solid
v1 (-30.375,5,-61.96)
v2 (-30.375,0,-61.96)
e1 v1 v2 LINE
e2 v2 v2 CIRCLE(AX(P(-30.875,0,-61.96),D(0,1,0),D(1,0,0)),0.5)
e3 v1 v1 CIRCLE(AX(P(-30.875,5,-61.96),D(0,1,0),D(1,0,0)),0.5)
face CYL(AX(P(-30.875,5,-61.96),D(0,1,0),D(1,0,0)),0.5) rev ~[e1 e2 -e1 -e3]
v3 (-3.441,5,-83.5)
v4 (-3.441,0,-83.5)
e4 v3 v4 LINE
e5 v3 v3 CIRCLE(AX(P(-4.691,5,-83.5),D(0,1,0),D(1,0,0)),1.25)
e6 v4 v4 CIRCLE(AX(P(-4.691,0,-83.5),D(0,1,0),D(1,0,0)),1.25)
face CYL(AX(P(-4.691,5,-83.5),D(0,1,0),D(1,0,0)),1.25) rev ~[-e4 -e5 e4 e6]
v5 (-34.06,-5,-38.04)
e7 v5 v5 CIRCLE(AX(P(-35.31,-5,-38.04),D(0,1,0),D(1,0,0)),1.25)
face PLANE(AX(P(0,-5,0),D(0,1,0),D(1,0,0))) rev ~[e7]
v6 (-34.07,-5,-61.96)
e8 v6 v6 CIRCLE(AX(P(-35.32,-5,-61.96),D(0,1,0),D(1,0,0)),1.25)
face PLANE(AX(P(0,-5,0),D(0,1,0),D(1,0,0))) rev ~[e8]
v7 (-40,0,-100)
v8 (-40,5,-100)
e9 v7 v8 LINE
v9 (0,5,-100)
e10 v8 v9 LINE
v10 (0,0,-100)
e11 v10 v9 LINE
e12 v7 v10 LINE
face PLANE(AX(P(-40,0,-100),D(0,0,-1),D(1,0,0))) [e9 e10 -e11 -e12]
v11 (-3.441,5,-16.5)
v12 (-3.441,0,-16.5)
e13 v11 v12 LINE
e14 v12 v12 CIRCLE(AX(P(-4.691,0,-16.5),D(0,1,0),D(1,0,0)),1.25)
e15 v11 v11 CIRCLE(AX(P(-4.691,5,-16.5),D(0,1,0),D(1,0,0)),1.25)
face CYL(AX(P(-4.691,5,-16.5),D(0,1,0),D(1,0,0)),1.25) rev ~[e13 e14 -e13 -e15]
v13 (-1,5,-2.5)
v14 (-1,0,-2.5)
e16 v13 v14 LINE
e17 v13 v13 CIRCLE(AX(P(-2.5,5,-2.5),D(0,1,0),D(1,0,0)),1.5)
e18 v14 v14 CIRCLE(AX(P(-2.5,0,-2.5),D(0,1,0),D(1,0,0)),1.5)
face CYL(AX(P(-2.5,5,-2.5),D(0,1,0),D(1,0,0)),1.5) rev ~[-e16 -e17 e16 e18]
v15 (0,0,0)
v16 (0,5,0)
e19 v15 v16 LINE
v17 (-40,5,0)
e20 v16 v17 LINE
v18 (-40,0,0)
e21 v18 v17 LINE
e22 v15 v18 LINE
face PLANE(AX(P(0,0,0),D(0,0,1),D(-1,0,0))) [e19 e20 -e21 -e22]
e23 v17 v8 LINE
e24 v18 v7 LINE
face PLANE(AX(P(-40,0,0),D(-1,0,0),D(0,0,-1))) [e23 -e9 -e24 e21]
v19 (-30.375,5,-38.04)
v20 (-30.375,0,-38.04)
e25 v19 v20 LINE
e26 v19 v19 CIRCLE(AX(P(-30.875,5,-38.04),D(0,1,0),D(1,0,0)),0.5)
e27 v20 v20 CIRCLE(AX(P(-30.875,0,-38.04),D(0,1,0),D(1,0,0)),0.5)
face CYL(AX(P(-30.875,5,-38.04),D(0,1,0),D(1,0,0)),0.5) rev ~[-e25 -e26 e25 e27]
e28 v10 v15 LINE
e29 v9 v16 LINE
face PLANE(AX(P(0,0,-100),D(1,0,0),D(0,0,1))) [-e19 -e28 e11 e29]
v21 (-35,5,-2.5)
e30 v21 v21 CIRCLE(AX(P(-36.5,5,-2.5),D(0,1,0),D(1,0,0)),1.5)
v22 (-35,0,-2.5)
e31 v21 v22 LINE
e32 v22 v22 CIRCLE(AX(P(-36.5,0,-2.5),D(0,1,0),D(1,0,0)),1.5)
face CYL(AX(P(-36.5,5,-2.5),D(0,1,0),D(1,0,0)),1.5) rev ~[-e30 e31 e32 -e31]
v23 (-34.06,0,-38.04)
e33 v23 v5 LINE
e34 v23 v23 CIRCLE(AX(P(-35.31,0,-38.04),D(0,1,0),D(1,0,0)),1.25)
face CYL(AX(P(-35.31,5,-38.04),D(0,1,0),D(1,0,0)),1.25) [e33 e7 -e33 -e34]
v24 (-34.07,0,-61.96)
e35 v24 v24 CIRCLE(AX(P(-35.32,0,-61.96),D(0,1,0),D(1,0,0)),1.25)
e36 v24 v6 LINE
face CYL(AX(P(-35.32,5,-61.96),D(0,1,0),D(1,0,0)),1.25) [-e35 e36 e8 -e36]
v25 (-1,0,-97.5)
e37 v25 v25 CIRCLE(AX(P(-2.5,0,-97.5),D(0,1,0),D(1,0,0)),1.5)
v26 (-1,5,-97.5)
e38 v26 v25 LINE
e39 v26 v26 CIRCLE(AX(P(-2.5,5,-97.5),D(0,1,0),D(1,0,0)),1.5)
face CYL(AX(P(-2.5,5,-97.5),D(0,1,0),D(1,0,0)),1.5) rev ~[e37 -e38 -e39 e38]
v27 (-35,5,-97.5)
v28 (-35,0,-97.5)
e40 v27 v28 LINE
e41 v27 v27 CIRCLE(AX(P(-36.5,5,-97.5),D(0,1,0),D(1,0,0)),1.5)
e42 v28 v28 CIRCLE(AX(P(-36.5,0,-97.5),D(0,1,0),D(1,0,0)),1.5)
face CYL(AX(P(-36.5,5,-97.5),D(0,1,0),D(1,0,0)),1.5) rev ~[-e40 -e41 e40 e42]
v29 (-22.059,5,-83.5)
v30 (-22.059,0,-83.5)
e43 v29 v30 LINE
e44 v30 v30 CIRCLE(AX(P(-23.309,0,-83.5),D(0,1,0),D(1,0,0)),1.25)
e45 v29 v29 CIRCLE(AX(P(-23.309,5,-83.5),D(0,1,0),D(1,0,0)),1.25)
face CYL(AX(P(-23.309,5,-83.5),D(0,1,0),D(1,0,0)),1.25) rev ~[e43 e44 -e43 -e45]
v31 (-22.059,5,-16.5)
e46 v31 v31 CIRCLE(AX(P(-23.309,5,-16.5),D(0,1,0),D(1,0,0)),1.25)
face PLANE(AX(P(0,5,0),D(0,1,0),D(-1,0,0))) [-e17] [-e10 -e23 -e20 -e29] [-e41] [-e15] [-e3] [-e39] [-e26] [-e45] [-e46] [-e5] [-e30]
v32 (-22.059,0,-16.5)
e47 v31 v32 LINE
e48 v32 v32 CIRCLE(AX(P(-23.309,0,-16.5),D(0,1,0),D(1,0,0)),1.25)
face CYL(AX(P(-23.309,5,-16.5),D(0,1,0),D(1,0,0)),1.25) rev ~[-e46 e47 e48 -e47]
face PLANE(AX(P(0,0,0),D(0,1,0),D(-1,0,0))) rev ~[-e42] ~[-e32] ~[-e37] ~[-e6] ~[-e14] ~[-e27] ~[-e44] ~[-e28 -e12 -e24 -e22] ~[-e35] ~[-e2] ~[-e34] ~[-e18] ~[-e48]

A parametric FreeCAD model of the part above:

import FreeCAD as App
import Part
import Sketcher

V = App.Vector
Q = App.Units.Quantity

doc = App.newDocument("Part")
params = doc.addObject("Spreadsheet::Sheet", "Params")
for row, (alias, value) in enumerate([
    ("sketch1_diameter", "3 mm"),
    ("sketch1_width", "40 mm"),
    ("sketch1_height", "100 mm"),
    ("pad1_length", "5 mm"),
    ("sketch2_diameter", "3 mm"),
    ("pocket1_length", "5 mm"),
    ("sketch3_height", "15 mm"),
    ("pocket2_length", "0.5 mm"),
    ("sketch4_diameter", "3 mm"),
    ("pad2_length", "5 mm"),
    ("sketch5_diameter", "2.5 mm"),
    ("pocket3_length", "5 mm"),
    ("sketch6_diameter", "2.5 mm"),
    ("pad3_length", "5 mm"),
    ("sketch7_diameter", "2.5 mm"),
    ("pocket4_length", "6 mm"),
    ("sketch8_height", "15 mm"),
    ("pad4_length", "0.5 mm"),
    ("sketch9_diameter", "2.5 mm"),
    ("pocket5_length", "5 mm"),
    ("sketch10_diameter", "2.5 mm"),
    ("pad5_length", "5 mm"),
    ("sketch11_diameter", "3 mm"),
    ("pocket6_length", "10 mm"),
    ("sketch12_diameter", "2.5 mm"),
    ("pocket7_length", "10 mm"),
    ("sketch13_diameter", "1 mm"),
    ("pocket8_length", "10 mm"),
    ("sketch14_diameter", "2.5 mm"),
    ("pad6_length", "10 mm"),
], start=1):
    params.set(f"A{row}", alias)
    params.set(f"B{row}", "=" + value)
    params.setAlias(f"B{row}", alias)

body = doc.addObject("PartDesign::Body", "Body")

sketch1 = doc.addObject("Sketcher::SketchObject", "Sketch")
body.addObject(sketch1)
sketch1.AttachmentSupport = (doc.XZ_Plane, [""])
sketch1.MapMode = "FlatFace"
sketch1.addGeometry(Part.LineSegment(V(-40, 0, 0), V(0, 0, 0)), False)
sketch1.addGeometry(Part.LineSegment(V(0, 0, 0), V(0, -100, 0)), False)
sketch1.addGeometry(Part.LineSegment(V(0, -100, 0), V(-40, -100, 0)), False)
sketch1.addGeometry(Part.LineSegment(V(-40, -100, 0), V(-40, 0, 0)), False)
sketch1.addGeometry(Part.Circle(V(-4, -83.5, 0), V(0, 0, 1), 1.5), False)
sketch1.addGeometry(Part.Circle(V(-19.95, -83.5, 0), V(0, 0, 1), 1.5), False)
sketch1.addGeometry(Part.Circle(V(-4, -16.5, 0), V(0, 0, 1), 1.5), False)
sketch1.addGeometry(Part.Circle(V(-19.95, -16.5, 0), V(0, 0, 1), 1.5), False)
sketch1.addConstraint(Sketcher.Constraint("Coincident", 0, 2, 1, 1))
sketch1.addConstraint(Sketcher.Constraint("Coincident", 1, 2, 2, 1))
sketch1.addConstraint(Sketcher.Constraint("Coincident", 2, 2, 3, 1))
sketch1.addConstraint(Sketcher.Constraint("Coincident", 3, 2, 0, 1))
sketch1.addConstraint(Sketcher.Constraint("Horizontal", 0))
sketch1.addConstraint(Sketcher.Constraint("Vertical", 1))
sketch1.addConstraint(Sketcher.Constraint("Horizontal", 2))
sketch1.addConstraint(Sketcher.Constraint("Vertical", 3))
sketch1.addConstraint(Sketcher.Constraint("Coincident", 0, 2, -1, 1))
sketch1.addConstraint(Sketcher.Constraint("Equal", 4, 5))
sketch1.addConstraint(Sketcher.Constraint("Equal", 5, 6))
sketch1.addConstraint(Sketcher.Constraint("Equal", 6, 7))
sketch1.addConstraint(Sketcher.Constraint("Horizontal", 4, 3, 5, 3))
sketch1.addConstraint(Sketcher.Constraint("Horizontal", 6, 3, 7, 3))
sketch1.addConstraint(Sketcher.Constraint("Vertical", 4, 3, 6, 3))
sketch1.addConstraint(Sketcher.Constraint("Vertical", 5, 3, 7, 3))
sketch1.addConstraint(Sketcher.Constraint("Diameter", 4, Q("3 mm")))
sketch1.addConstraint(Sketcher.Constraint("DistanceX", 0, 1, 0, 2, Q("40 mm")))
sketch1.addConstraint(Sketcher.Constraint("DistanceY", 1, 2, 1, 1, Q("100 mm")))
sketch1.addConstraint(Sketcher.Constraint("DistanceX", 4, 3, -1, 1, Q("4 mm")))
sketch1.addConstraint(Sketcher.Constraint("DistanceY", 6, 3, -1, 1, Q("16.5 mm")))
sketch1.addConstraint(Sketcher.Constraint("DistanceY", 1, 2, 4, 3, Q("16.5 mm")))
sketch1.addConstraint(Sketcher.Constraint("DistanceX", 5, 3, 4, 3, Q("15.95 mm")))
sketch1.setExpression("Constraints[16]", "Params.sketch1_diameter")
sketch1.setExpression("Constraints[17]", "Params.sketch1_width")
sketch1.setExpression("Constraints[18]", "Params.sketch1_height")
pad1 = doc.addObject("PartDesign::Pad", "Pad")
body.addObject(pad1)
pad1.Profile = sketch1
pad1.setExpression("Length", "Params.pad1_length")
pad1.Reversed = True

sketch2 = doc.addObject("Sketcher::SketchObject", "Sketch001")
body.addObject(sketch2)
sketch2.AttachmentSupport = (doc.XZ_Plane, [""])
sketch2.MapMode = "FlatFace"
sketch2.AttachmentOffset = App.Placement(V(0, 0, -5), App.Rotation())
sketch2.addGeometry(Part.Circle(V(-2.5, -2.5, 0), V(0, 0, 1), 1.5), False)
sketch2.addGeometry(Part.Circle(V(-2.5, -97.5, 0), V(0, 0, 1), 1.5), False)
sketch2.addConstraint(Sketcher.Constraint("Equal", 0, 1))
sketch2.addConstraint(Sketcher.Constraint("Vertical", 0, 3, 1, 3))
sketch2.addConstraint(Sketcher.Constraint("Diameter", 0, Q("3 mm")))
sketch2.addConstraint(Sketcher.Constraint("DistanceX", 0, 3, -1, 1, Q("2.5 mm")))
sketch2.addConstraint(Sketcher.Constraint("DistanceY", 0, 3, -1, 1, Q("2.5 mm")))
sketch2.addConstraint(Sketcher.Constraint("DistanceY", 1, 3, 0, 3, Q("95 mm")))
sketch2.setExpression("Constraints[2]", "Params.sketch2_diameter")
pocket1 = doc.addObject("PartDesign::Pocket", "Pocket")
body.addObject(pocket1)
pocket1.Profile = sketch2
pocket1.setExpression("Length", "Params.pocket1_length")
pocket1.Reversed = True

sketch3 = doc.addObject("Sketcher::SketchObject", "Sketch002")
body.addObject(sketch3)
sketch3.AttachmentSupport = (doc.XZ_Plane, [""])
sketch3.MapMode = "FlatFace"
sketch3.AttachmentOffset = App.Placement(V(0, 0, -5), App.Rotation())
sketch3.addGeometry(Part.LineSegment(V(-8, -24, 0), V(-14.618, -24, 0)), False)
sketch3.addGeometry(Part.LineSegment(V(-14.618, -24, 0), V(-14.618, -9, 0)), False)
sketch3.addGeometry(Part.LineSegment(V(-14.618, -9, 0), V(-8, -9, 0)), False)
sketch3.addGeometry(Part.LineSegment(V(-8, -9, 0), V(-8, -24, 0)), False)
sketch3.addGeometry(Part.LineSegment(V(-8, -91, 0), V(-14.618, -91, 0)), False)
sketch3.addGeometry(Part.LineSegment(V(-14.618, -91, 0), V(-14.618, -76, 0)), False)
sketch3.addGeometry(Part.LineSegment(V(-14.618, -76, 0), V(-8, -76, 0)), False)
sketch3.addGeometry(Part.LineSegment(V(-8, -76, 0), V(-8, -91, 0)), False)
sketch3.addConstraint(Sketcher.Constraint("Coincident", 0, 2, 1, 1))
sketch3.addConstraint(Sketcher.Constraint("Coincident", 1, 2, 2, 1))
sketch3.addConstraint(Sketcher.Constraint("Coincident", 2, 2, 3, 1))
sketch3.addConstraint(Sketcher.Constraint("Coincident", 3, 2, 0, 1))
sketch3.addConstraint(Sketcher.Constraint("Coincident", 4, 2, 5, 1))
sketch3.addConstraint(Sketcher.Constraint("Coincident", 5, 2, 6, 1))
sketch3.addConstraint(Sketcher.Constraint("Coincident", 6, 2, 7, 1))
sketch3.addConstraint(Sketcher.Constraint("Coincident", 7, 2, 4, 1))
sketch3.addConstraint(Sketcher.Constraint("Horizontal", 0))
sketch3.addConstraint(Sketcher.Constraint("Vertical", 1))
sketch3.addConstraint(Sketcher.Constraint("Horizontal", 2))
sketch3.addConstraint(Sketcher.Constraint("Vertical", 3))
sketch3.addConstraint(Sketcher.Constraint("Horizontal", 4))
sketch3.addConstraint(Sketcher.Constraint("Vertical", 5))
sketch3.addConstraint(Sketcher.Constraint("Horizontal", 6))
sketch3.addConstraint(Sketcher.Constraint("Vertical", 7))
sketch3.addConstraint(Sketcher.Constraint("Vertical", 1, 2, 4, 2))
sketch3.addConstraint(Sketcher.Constraint("Vertical", 3, 2, 6, 2))
sketch3.addConstraint(Sketcher.Constraint("Equal", 3, 5))
sketch3.addConstraint(Sketcher.Constraint("DistanceY", 1, 1, 1, 2, Q("15 mm")))
sketch3.addConstraint(Sketcher.Constraint("DistanceY", 1, 2, -1, 1, Q("9 mm")))
sketch3.addConstraint(Sketcher.Constraint("DistanceX", 2, 2, -1, 1, Q("8 mm")))
sketch3.addConstraint(Sketcher.Constraint("DistanceX", 0, 2, 0, 1, Q("6.618 mm")))
sketch3.addConstraint(Sketcher.Constraint("DistanceY", 4, 2, -1, 1, Q("91 mm")))
sketch3.setExpression("Constraints[19]", "Params.sketch3_height")
pocket2 = doc.addObject("PartDesign::Pocket", "Pocket001")
body.addObject(pocket2)
pocket2.Profile = sketch3
pocket2.setExpression("Length", "Params.pocket2_length")
pocket2.Reversed = True

sketch4 = doc.addObject("Sketcher::SketchObject", "Sketch003")
body.addObject(sketch4)
sketch4.AttachmentSupport = (doc.XZ_Plane, [""])
sketch4.MapMode = "FlatFace"
sketch4.AttachmentOffset = App.Placement(V(0, 0, -5), App.Rotation())
sketch4.addGeometry(Part.Circle(V(-19.95, -16.5, 0), V(0, 0, 1), 1.5), False)
sketch4.addGeometry(Part.Circle(V(-4, -16.5, 0), V(0, 0, 1), 1.5), False)
sketch4.addGeometry(Part.Circle(V(-19.95, -83.5, 0), V(0, 0, 1), 1.5), False)
sketch4.addGeometry(Part.Circle(V(-4, -83.5, 0), V(0, 0, 1), 1.5), False)
sketch4.addConstraint(Sketcher.Constraint("Equal", 0, 1))
sketch4.addConstraint(Sketcher.Constraint("Equal", 1, 2))
sketch4.addConstraint(Sketcher.Constraint("Equal", 2, 3))
sketch4.addConstraint(Sketcher.Constraint("Horizontal", 0, 3, 1, 3))
sketch4.addConstraint(Sketcher.Constraint("Horizontal", 2, 3, 3, 3))
sketch4.addConstraint(Sketcher.Constraint("Vertical", 0, 3, 2, 3))
sketch4.addConstraint(Sketcher.Constraint("Vertical", 1, 3, 3, 3))
sketch4.addConstraint(Sketcher.Constraint("Diameter", 0, Q("3 mm")))
sketch4.addConstraint(Sketcher.Constraint("DistanceX", 1, 3, -1, 1, Q("4 mm")))
sketch4.addConstraint(Sketcher.Constraint("DistanceY", 2, 3, 0, 3, Q("67 mm")))
sketch4.addConstraint(Sketcher.Constraint("DistanceY", 0, 3, -1, 1, Q("16.5 mm")))
sketch4.addConstraint(Sketcher.Constraint("DistanceX", 0, 3, -1, 1, Q("19.95 mm")))
sketch4.setExpression("Constraints[7]", "Params.sketch4_diameter")
pad2 = doc.addObject("PartDesign::Pad", "Pad001")
body.addObject(pad2)
pad2.Profile = sketch4
pad2.setExpression("Length", "Params.pad2_length")

sketch5 = doc.addObject("Sketcher::SketchObject", "Sketch004")
body.addObject(sketch5)
sketch5.AttachmentSupport = (doc.XZ_Plane, [""])
sketch5.MapMode = "FlatFace"
sketch5.AttachmentOffset = App.Placement(V(0, 0, -5), App.Rotation())
sketch5.addGeometry(Part.Circle(V(-4, -16.5, 0), V(0, 0, 1), 1.25), False)
sketch5.addGeometry(Part.Circle(V(-18.618, -16.5, 0), V(0, 0, 1), 1.25), False)
sketch5.addGeometry(Part.Circle(V(-4, -83.5, 0), V(0, 0, 1), 1.25), False)
sketch5.addGeometry(Part.Circle(V(-18.618, -83.5, 0), V(0, 0, 1), 1.25), False)
sketch5.addConstraint(Sketcher.Constraint("Equal", 0, 1))
sketch5.addConstraint(Sketcher.Constraint("Equal", 1, 2))
sketch5.addConstraint(Sketcher.Constraint("Equal", 2, 3))
sketch5.addConstraint(Sketcher.Constraint("Horizontal", 0, 3, 1, 3))
sketch5.addConstraint(Sketcher.Constraint("Horizontal", 2, 3, 3, 3))
sketch5.addConstraint(Sketcher.Constraint("Vertical", 0, 3, 2, 3))
sketch5.addConstraint(Sketcher.Constraint("Vertical", 1, 3, 3, 3))
sketch5.addConstraint(Sketcher.Constraint("Diameter", 0, Q("2.5 mm")))
sketch5.addConstraint(Sketcher.Constraint("DistanceX", 0, 3, -1, 1, Q("4 mm")))
sketch5.addConstraint(Sketcher.Constraint("DistanceY", 2, 3, 0, 3, Q("67 mm")))
sketch5.addConstraint(Sketcher.Constraint("DistanceY", 0, 3, -1, 1, Q("16.5 mm")))
sketch5.addConstraint(Sketcher.Constraint("DistanceX", 1, 3, -1, 1, Q("18.618 mm")))
sketch5.setExpression("Constraints[7]", "Params.sketch5_diameter")
pocket3 = doc.addObject("PartDesign::Pocket", "Pocket002")
body.addObject(pocket3)
pocket3.Profile = sketch5
pocket3.setExpression("Length", "Params.pocket3_length")
pocket3.Reversed = True

sketch6 = doc.addObject("Sketcher::SketchObject", "Sketch005")
body.addObject(sketch6)
sketch6.AttachmentSupport = (doc.XZ_Plane, [""])
sketch6.MapMode = "FlatFace"
sketch6.AttachmentOffset = App.Placement(V(0, 0, -5), App.Rotation())
sketch6.addGeometry(Part.Circle(V(-18.618, -16.5, 0), V(0, 0, 1), 1.25), False)
sketch6.addGeometry(Part.Circle(V(-4, -16.5, 0), V(0, 0, 1), 1.25), False)
sketch6.addGeometry(Part.Circle(V(-18.618, -83.5, 0), V(0, 0, 1), 1.25), False)
sketch6.addGeometry(Part.Circle(V(-4, -83.5, 0), V(0, 0, 1), 1.25), False)
sketch6.addConstraint(Sketcher.Constraint("Equal", 0, 1))
sketch6.addConstraint(Sketcher.Constraint("Equal", 1, 2))
sketch6.addConstraint(Sketcher.Constraint("Equal", 2, 3))
sketch6.addConstraint(Sketcher.Constraint("Horizontal", 0, 3, 1, 3))
sketch6.addConstraint(Sketcher.Constraint("Horizontal", 2, 3, 3, 3))
sketch6.addConstraint(Sketcher.Constraint("Vertical", 0, 3, 2, 3))
sketch6.addConstraint(Sketcher.Constraint("Vertical", 1, 3, 3, 3))
sketch6.addConstraint(Sketcher.Constraint("Diameter", 0, Q("2.5 mm")))
sketch6.addConstraint(Sketcher.Constraint("DistanceX", 1, 3, -1, 1, Q("4 mm")))
sketch6.addConstraint(Sketcher.Constraint("DistanceY", 2, 3, 0, 3, Q("67 mm")))
sketch6.addConstraint(Sketcher.Constraint("DistanceY", 0, 3, -1, 1, Q("16.5 mm")))
sketch6.addConstraint(Sketcher.Constraint("DistanceX", 0, 3, -1, 1, Q("18.618 mm")))
sketch6.setExpression("Constraints[7]", "Params.sketch6_diameter")
pad3 = doc.addObject("PartDesign::Pad", "Pad002")
body.addObject(pad3)
pad3.Profile = sketch6
pad3.setExpression("Length", "Params.pad3_length")

sketch7 = doc.addObject("Sketcher::SketchObject", "Sketch006")
body.addObject(sketch7)
sketch7.AttachmentSupport = (doc.XZ_Plane, [""])
sketch7.MapMode = "FlatFace"
sketch7.AttachmentOffset = App.Placement(V(0, 0, -5), App.Rotation())
sketch7.addGeometry(Part.Circle(V(-20.618, -16.5, 0), V(0, 0, 1), 1.25), False)
sketch7.addGeometry(Part.Circle(V(-2, -16.5, 0), V(0, 0, 1), 1.25), False)
sketch7.addGeometry(Part.Circle(V(-2, -83.5, 0), V(0, 0, 1), 1.25), False)
sketch7.addGeometry(Part.Circle(V(-20.618, -83.5, 0), V(0, 0, 1), 1.25), False)
sketch7.addConstraint(Sketcher.Constraint("Equal", 0, 1))
sketch7.addConstraint(Sketcher.Constraint("Equal", 1, 2))
sketch7.addConstraint(Sketcher.Constraint("Equal", 2, 3))
sketch7.addConstraint(Sketcher.Constraint("Horizontal", 0, 3, 1, 3))
sketch7.addConstraint(Sketcher.Constraint("Horizontal", 2, 3, 3, 3))
sketch7.addConstraint(Sketcher.Constraint("Vertical", 1, 3, 2, 3))
sketch7.addConstraint(Sketcher.Constraint("Vertical", 0, 3, 3, 3))
sketch7.addConstraint(Sketcher.Constraint("Diameter", 0, Q("2.5 mm")))
sketch7.addConstraint(Sketcher.Constraint("DistanceX", 1, 3, -1, 1, Q("2 mm")))
sketch7.addConstraint(Sketcher.Constraint("DistanceY", 2, 3, 1, 3, Q("67 mm")))
sketch7.addConstraint(Sketcher.Constraint("DistanceY", 0, 3, -1, 1, Q("16.5 mm")))
sketch7.addConstraint(Sketcher.Constraint("DistanceX", 0, 3, -1, 1, Q("20.618 mm")))
sketch7.setExpression("Constraints[7]", "Params.sketch7_diameter")
pocket4 = doc.addObject("PartDesign::Pocket", "Pocket003")
body.addObject(pocket4)
pocket4.Profile = sketch7
pocket4.setExpression("Length", "Params.pocket4_length")
pocket4.Reversed = True

sketch8 = doc.addObject("Sketcher::SketchObject", "Sketch007")
body.addObject(sketch8)
sketch8.AttachmentSupport = (doc.XZ_Plane, [""])
sketch8.MapMode = "FlatFace"
sketch8.AttachmentOffset = App.Placement(V(0, 0, -5), App.Rotation())
sketch8.addGeometry(Part.LineSegment(V(-14.618, -24, 0), V(-14.618, -9, 0)), False)
sketch8.addGeometry(Part.LineSegment(V(-14.618, -9, 0), V(-8, -9, 0)), False)
sketch8.addGeometry(Part.LineSegment(V(-8, -9, 0), V(-8, -24, 0)), False)
sketch8.addGeometry(Part.LineSegment(V(-8, -24, 0), V(-14.618, -24, 0)), False)
sketch8.addGeometry(Part.LineSegment(V(-8, -91, 0), V(-14.618, -91, 0)), False)
sketch8.addGeometry(Part.LineSegment(V(-14.618, -91, 0), V(-14.618, -76, 0)), False)
sketch8.addGeometry(Part.LineSegment(V(-14.618, -76, 0), V(-8, -76, 0)), False)
sketch8.addGeometry(Part.LineSegment(V(-8, -76, 0), V(-8, -91, 0)), False)
sketch8.addConstraint(Sketcher.Constraint("Coincident", 0, 2, 1, 1))
sketch8.addConstraint(Sketcher.Constraint("Coincident", 1, 2, 2, 1))
sketch8.addConstraint(Sketcher.Constraint("Coincident", 2, 2, 3, 1))
sketch8.addConstraint(Sketcher.Constraint("Coincident", 3, 2, 0, 1))
sketch8.addConstraint(Sketcher.Constraint("Coincident", 4, 2, 5, 1))
sketch8.addConstraint(Sketcher.Constraint("Coincident", 5, 2, 6, 1))
sketch8.addConstraint(Sketcher.Constraint("Coincident", 6, 2, 7, 1))
sketch8.addConstraint(Sketcher.Constraint("Coincident", 7, 2, 4, 1))
sketch8.addConstraint(Sketcher.Constraint("Vertical", 0))
sketch8.addConstraint(Sketcher.Constraint("Horizontal", 1))
sketch8.addConstraint(Sketcher.Constraint("Vertical", 2))
sketch8.addConstraint(Sketcher.Constraint("Horizontal", 3))
sketch8.addConstraint(Sketcher.Constraint("Horizontal", 4))
sketch8.addConstraint(Sketcher.Constraint("Vertical", 5))
sketch8.addConstraint(Sketcher.Constraint("Horizontal", 6))
sketch8.addConstraint(Sketcher.Constraint("Vertical", 7))
sketch8.addConstraint(Sketcher.Constraint("Vertical", 3, 2, 4, 2))
sketch8.addConstraint(Sketcher.Constraint("Vertical", 2, 2, 6, 2))
sketch8.addConstraint(Sketcher.Constraint("Equal", 2, 5))
sketch8.addConstraint(Sketcher.Constraint("DistanceY", 0, 1, 0, 2, Q("15 mm")))
sketch8.addConstraint(Sketcher.Constraint("DistanceY", 0, 2, -1, 1, Q("9 mm")))
sketch8.addConstraint(Sketcher.Constraint("DistanceX", 1, 2, -1, 1, Q("8 mm")))
sketch8.addConstraint(Sketcher.Constraint("DistanceY", 4, 2, -1, 1, Q("91 mm")))
sketch8.addConstraint(Sketcher.Constraint("DistanceX", 1, 1, 1, 2, Q("6.618 mm")))
sketch8.setExpression("Constraints[19]", "Params.sketch8_height")
pad4 = doc.addObject("PartDesign::Pad", "Pad003")
body.addObject(pad4)
pad4.Profile = sketch8
pad4.setExpression("Length", "Params.pad4_length")

sketch9 = doc.addObject("Sketcher::SketchObject", "Sketch008")
body.addObject(sketch9)
sketch9.AttachmentSupport = (doc.XZ_Plane, [""])
sketch9.MapMode = "FlatFace"
sketch9.AttachmentOffset = App.Placement(V(0, 0, -5), App.Rotation())
sketch9.addGeometry(Part.Circle(V(-4.691, -16.5, 0), V(0, 0, 1), 1.25), False)
sketch9.addGeometry(Part.Circle(V(-23.309, -16.5, 0), V(0, 0, 1), 1.25), False)
sketch9.addGeometry(Part.Circle(V(-4.691, -83.5, 0), V(0, 0, 1), 1.25), False)
sketch9.addGeometry(Part.Circle(V(-23.309, -83.5, 0), V(0, 0, 1), 1.25), False)
sketch9.addConstraint(Sketcher.Constraint("Equal", 0, 1))
sketch9.addConstraint(Sketcher.Constraint("Equal", 1, 2))
sketch9.addConstraint(Sketcher.Constraint("Equal", 2, 3))
sketch9.addConstraint(Sketcher.Constraint("Horizontal", 0, 3, 1, 3))
sketch9.addConstraint(Sketcher.Constraint("Horizontal", 2, 3, 3, 3))
sketch9.addConstraint(Sketcher.Constraint("Vertical", 0, 3, 2, 3))
sketch9.addConstraint(Sketcher.Constraint("Vertical", 1, 3, 3, 3))
sketch9.addConstraint(Sketcher.Constraint("Diameter", 0, Q("2.5 mm")))
sketch9.addConstraint(Sketcher.Constraint("DistanceY", 2, 3, 0, 3, Q("67 mm")))
sketch9.addConstraint(Sketcher.Constraint("DistanceY", 0, 3, -1, 1, Q("16.5 mm")))
sketch9.addConstraint(Sketcher.Constraint("DistanceX", 0, 3, -1, 1, Q("4.691 mm")))
sketch9.addConstraint(Sketcher.Constraint("DistanceX", 1, 3, -1, 1, Q("23.309 mm")))
sketch9.setExpression("Constraints[7]", "Params.sketch9_diameter")
pocket5 = doc.addObject("PartDesign::Pocket", "Pocket004")
body.addObject(pocket5)
pocket5.Profile = sketch9
pocket5.setExpression("Length", "Params.pocket5_length")
pocket5.Reversed = True

sketch10 = doc.addObject("Sketcher::SketchObject", "Sketch009")
body.addObject(sketch10)
sketch10.AttachmentSupport = (doc.XZ_Plane, [""])
sketch10.MapMode = "FlatFace"
sketch10.AttachmentOffset = App.Placement(V(0, 0, -5), App.Rotation())
sketch10.addGeometry(Part.Circle(V(-20.618, -16.5, 0), V(0, 0, 1), 1.25), False)
sketch10.addGeometry(Part.Circle(V(-2, -16.5, 0), V(0, 0, 1), 1.25), False)
sketch10.addGeometry(Part.Circle(V(-20.618, -83.5, 0), V(0, 0, 1), 1.25), False)
sketch10.addGeometry(Part.Circle(V(-2, -83.5, 0), V(0, 0, 1), 1.25), False)
sketch10.addConstraint(Sketcher.Constraint("Equal", 0, 1))
sketch10.addConstraint(Sketcher.Constraint("Equal", 1, 2))
sketch10.addConstraint(Sketcher.Constraint("Equal", 2, 3))
sketch10.addConstraint(Sketcher.Constraint("Horizontal", 0, 3, 1, 3))
sketch10.addConstraint(Sketcher.Constraint("Horizontal", 2, 3, 3, 3))
sketch10.addConstraint(Sketcher.Constraint("Vertical", 0, 3, 2, 3))
sketch10.addConstraint(Sketcher.Constraint("Vertical", 1, 3, 3, 3))
sketch10.addConstraint(Sketcher.Constraint("Diameter", 0, Q("2.5 mm")))
sketch10.addConstraint(Sketcher.Constraint("DistanceX", 1, 3, -1, 1, Q("2 mm")))
sketch10.addConstraint(Sketcher.Constraint("DistanceY", 2, 3, 0, 3, Q("67 mm")))
sketch10.addConstraint(Sketcher.Constraint("DistanceY", 0, 3, -1, 1, Q("16.5 mm")))
sketch10.addConstraint(Sketcher.Constraint("DistanceX", 0, 3, -1, 1, Q("20.618 mm")))
sketch10.setExpression("Constraints[7]", "Params.sketch10_diameter")
pad5 = doc.addObject("PartDesign::Pad", "Pad004")
body.addObject(pad5)
pad5.Profile = sketch10
pad5.setExpression("Length", "Params.pad5_length")

sketch11 = doc.addObject("Sketcher::SketchObject", "Sketch010")
body.addObject(sketch11)
sketch11.AttachmentSupport = (doc.XZ_Plane, [""])
sketch11.MapMode = "FlatFace"
sketch11.AttachmentOffset = App.Placement(V(0, 0, -5), App.Rotation())
sketch11.addGeometry(Part.Circle(V(-36.5, -2.5, 0), V(0, 0, 1), 1.5), False)
sketch11.addGeometry(Part.Circle(V(-36.5, -97.5, 0), V(0, 0, 1), 1.5), False)
sketch11.addConstraint(Sketcher.Constraint("Equal", 0, 1))
sketch11.addConstraint(Sketcher.Constraint("Vertical", 0, 3, 1, 3))
sketch11.addConstraint(Sketcher.Constraint("Diameter", 0, Q("3 mm")))
sketch11.addConstraint(Sketcher.Constraint("DistanceY", 1, 3, 0, 3, Q("95 mm")))
sketch11.addConstraint(Sketcher.Constraint("DistanceX", 0, 3, -1, 1, Q("36.5 mm")))
sketch11.addConstraint(Sketcher.Constraint("DistanceY", 0, 3, -1, 1, Q("2.5 mm")))
sketch11.setExpression("Constraints[2]", "Params.sketch11_diameter")
pocket6 = doc.addObject("PartDesign::Pocket", "Pocket005")
body.addObject(pocket6)
pocket6.Profile = sketch11
pocket6.setExpression("Length", "Params.pocket6_length")
pocket6.Reversed = True

sketch12 = doc.addObject("Sketcher::SketchObject", "Sketch011")
body.addObject(sketch12)
sketch12.AttachmentSupport = (doc.XZ_Plane, [""])
sketch12.MapMode = "FlatFace"
sketch12.AttachmentOffset = App.Placement(V(0, 0, -5), App.Rotation())
sketch12.addGeometry(Part.Circle(V(-35.31, -38.04, 0), V(0, 0, 1), 1.25), False)
sketch12.addGeometry(Part.Circle(V(-35.32, -61.96, 0), V(0, 0, 1), 1.25), False)
sketch12.addConstraint(Sketcher.Constraint("Equal", 0, 1))
sketch12.addConstraint(Sketcher.Constraint("Diameter", 0, Q("2.5 mm")))
sketch12.addConstraint(Sketcher.Constraint("DistanceY", 0, 3, -1, 1, Q("38.04 mm")))
sketch12.addConstraint(Sketcher.Constraint("DistanceY", 1, 3, 0, 3, Q("23.92 mm")))
sketch12.addConstraint(Sketcher.Constraint("DistanceX", 0, 3, -1, 1, Q("35.31 mm")))
sketch12.addConstraint(Sketcher.Constraint("DistanceX", 1, 3, -1, 1, Q("35.32 mm")))
sketch12.setExpression("Constraints[1]", "Params.sketch12_diameter")
pocket7 = doc.addObject("PartDesign::Pocket", "Pocket006")
body.addObject(pocket7)
pocket7.Profile = sketch12
pocket7.setExpression("Length", "Params.pocket7_length")
pocket7.Reversed = True

sketch13 = doc.addObject("Sketcher::SketchObject", "Sketch012")
body.addObject(sketch13)
sketch13.AttachmentSupport = (doc.XZ_Plane, [""])
sketch13.MapMode = "FlatFace"
sketch13.AttachmentOffset = App.Placement(V(0, 0, -5), App.Rotation())
sketch13.addGeometry(Part.Circle(V(-30.875, -61.96, 0), V(0, 0, 1), 0.5), False)
sketch13.addGeometry(Part.Circle(V(-30.875, -38.04, 0), V(0, 0, 1), 0.5), False)
sketch13.addConstraint(Sketcher.Constraint("Equal", 0, 1))
sketch13.addConstraint(Sketcher.Constraint("Vertical", 0, 3, 1, 3))
sketch13.addConstraint(Sketcher.Constraint("Diameter", 0, Q("1 mm")))
sketch13.addConstraint(Sketcher.Constraint("DistanceY", 1, 3, -1, 1, Q("38.04 mm")))
sketch13.addConstraint(Sketcher.Constraint("DistanceY", 0, 3, -1, 1, Q("61.96 mm")))
sketch13.addConstraint(Sketcher.Constraint("DistanceX", 0, 3, -1, 1, Q("30.875 mm")))
sketch13.setExpression("Constraints[2]", "Params.sketch13_diameter")
pocket8 = doc.addObject("PartDesign::Pocket", "Pocket007")
body.addObject(pocket8)
pocket8.Profile = sketch13
pocket8.setExpression("Length", "Params.pocket8_length")
pocket8.Reversed = True

sketch14 = doc.addObject("Sketcher::SketchObject", "Sketch013")
body.addObject(sketch14)
sketch14.AttachmentSupport = (doc.XZ_Plane, [""])
sketch14.MapMode = "FlatFace"
sketch14.AttachmentOffset = App.Placement(V(0, 0, -5), App.Rotation())
sketch14.addGeometry(Part.Circle(V(-35.31, -38.04, 0), V(0, 0, 1), 1.25), False)
sketch14.addGeometry(Part.Circle(V(-35.32, -61.96, 0), V(0, 0, 1), 1.25), False)
sketch14.addConstraint(Sketcher.Constraint("Equal", 0, 1))
sketch14.addConstraint(Sketcher.Constraint("Diameter", 0, Q("2.5 mm")))
sketch14.addConstraint(Sketcher.Constraint("DistanceX", 0, 3, -1, 1, Q("35.31 mm")))
sketch14.addConstraint(Sketcher.Constraint("DistanceY", 0, 3, -1, 1, Q("38.04 mm")))
sketch14.addConstraint(Sketcher.Constraint("DistanceX", 1, 3, -1, 1, Q("35.32 mm")))
sketch14.addConstraint(Sketcher.Constraint("DistanceY", 1, 3, -1, 1, Q("61.96 mm")))
sketch14.setExpression("Constraints[1]", "Params.sketch14_diameter")
pad6 = doc.addObject("PartDesign::Pad", "Pad005")
body.addObject(pad6)
pad6.Profile = sketch14
pad6.setExpression("Length", "Params.pad6_length")

doc.recompute()
